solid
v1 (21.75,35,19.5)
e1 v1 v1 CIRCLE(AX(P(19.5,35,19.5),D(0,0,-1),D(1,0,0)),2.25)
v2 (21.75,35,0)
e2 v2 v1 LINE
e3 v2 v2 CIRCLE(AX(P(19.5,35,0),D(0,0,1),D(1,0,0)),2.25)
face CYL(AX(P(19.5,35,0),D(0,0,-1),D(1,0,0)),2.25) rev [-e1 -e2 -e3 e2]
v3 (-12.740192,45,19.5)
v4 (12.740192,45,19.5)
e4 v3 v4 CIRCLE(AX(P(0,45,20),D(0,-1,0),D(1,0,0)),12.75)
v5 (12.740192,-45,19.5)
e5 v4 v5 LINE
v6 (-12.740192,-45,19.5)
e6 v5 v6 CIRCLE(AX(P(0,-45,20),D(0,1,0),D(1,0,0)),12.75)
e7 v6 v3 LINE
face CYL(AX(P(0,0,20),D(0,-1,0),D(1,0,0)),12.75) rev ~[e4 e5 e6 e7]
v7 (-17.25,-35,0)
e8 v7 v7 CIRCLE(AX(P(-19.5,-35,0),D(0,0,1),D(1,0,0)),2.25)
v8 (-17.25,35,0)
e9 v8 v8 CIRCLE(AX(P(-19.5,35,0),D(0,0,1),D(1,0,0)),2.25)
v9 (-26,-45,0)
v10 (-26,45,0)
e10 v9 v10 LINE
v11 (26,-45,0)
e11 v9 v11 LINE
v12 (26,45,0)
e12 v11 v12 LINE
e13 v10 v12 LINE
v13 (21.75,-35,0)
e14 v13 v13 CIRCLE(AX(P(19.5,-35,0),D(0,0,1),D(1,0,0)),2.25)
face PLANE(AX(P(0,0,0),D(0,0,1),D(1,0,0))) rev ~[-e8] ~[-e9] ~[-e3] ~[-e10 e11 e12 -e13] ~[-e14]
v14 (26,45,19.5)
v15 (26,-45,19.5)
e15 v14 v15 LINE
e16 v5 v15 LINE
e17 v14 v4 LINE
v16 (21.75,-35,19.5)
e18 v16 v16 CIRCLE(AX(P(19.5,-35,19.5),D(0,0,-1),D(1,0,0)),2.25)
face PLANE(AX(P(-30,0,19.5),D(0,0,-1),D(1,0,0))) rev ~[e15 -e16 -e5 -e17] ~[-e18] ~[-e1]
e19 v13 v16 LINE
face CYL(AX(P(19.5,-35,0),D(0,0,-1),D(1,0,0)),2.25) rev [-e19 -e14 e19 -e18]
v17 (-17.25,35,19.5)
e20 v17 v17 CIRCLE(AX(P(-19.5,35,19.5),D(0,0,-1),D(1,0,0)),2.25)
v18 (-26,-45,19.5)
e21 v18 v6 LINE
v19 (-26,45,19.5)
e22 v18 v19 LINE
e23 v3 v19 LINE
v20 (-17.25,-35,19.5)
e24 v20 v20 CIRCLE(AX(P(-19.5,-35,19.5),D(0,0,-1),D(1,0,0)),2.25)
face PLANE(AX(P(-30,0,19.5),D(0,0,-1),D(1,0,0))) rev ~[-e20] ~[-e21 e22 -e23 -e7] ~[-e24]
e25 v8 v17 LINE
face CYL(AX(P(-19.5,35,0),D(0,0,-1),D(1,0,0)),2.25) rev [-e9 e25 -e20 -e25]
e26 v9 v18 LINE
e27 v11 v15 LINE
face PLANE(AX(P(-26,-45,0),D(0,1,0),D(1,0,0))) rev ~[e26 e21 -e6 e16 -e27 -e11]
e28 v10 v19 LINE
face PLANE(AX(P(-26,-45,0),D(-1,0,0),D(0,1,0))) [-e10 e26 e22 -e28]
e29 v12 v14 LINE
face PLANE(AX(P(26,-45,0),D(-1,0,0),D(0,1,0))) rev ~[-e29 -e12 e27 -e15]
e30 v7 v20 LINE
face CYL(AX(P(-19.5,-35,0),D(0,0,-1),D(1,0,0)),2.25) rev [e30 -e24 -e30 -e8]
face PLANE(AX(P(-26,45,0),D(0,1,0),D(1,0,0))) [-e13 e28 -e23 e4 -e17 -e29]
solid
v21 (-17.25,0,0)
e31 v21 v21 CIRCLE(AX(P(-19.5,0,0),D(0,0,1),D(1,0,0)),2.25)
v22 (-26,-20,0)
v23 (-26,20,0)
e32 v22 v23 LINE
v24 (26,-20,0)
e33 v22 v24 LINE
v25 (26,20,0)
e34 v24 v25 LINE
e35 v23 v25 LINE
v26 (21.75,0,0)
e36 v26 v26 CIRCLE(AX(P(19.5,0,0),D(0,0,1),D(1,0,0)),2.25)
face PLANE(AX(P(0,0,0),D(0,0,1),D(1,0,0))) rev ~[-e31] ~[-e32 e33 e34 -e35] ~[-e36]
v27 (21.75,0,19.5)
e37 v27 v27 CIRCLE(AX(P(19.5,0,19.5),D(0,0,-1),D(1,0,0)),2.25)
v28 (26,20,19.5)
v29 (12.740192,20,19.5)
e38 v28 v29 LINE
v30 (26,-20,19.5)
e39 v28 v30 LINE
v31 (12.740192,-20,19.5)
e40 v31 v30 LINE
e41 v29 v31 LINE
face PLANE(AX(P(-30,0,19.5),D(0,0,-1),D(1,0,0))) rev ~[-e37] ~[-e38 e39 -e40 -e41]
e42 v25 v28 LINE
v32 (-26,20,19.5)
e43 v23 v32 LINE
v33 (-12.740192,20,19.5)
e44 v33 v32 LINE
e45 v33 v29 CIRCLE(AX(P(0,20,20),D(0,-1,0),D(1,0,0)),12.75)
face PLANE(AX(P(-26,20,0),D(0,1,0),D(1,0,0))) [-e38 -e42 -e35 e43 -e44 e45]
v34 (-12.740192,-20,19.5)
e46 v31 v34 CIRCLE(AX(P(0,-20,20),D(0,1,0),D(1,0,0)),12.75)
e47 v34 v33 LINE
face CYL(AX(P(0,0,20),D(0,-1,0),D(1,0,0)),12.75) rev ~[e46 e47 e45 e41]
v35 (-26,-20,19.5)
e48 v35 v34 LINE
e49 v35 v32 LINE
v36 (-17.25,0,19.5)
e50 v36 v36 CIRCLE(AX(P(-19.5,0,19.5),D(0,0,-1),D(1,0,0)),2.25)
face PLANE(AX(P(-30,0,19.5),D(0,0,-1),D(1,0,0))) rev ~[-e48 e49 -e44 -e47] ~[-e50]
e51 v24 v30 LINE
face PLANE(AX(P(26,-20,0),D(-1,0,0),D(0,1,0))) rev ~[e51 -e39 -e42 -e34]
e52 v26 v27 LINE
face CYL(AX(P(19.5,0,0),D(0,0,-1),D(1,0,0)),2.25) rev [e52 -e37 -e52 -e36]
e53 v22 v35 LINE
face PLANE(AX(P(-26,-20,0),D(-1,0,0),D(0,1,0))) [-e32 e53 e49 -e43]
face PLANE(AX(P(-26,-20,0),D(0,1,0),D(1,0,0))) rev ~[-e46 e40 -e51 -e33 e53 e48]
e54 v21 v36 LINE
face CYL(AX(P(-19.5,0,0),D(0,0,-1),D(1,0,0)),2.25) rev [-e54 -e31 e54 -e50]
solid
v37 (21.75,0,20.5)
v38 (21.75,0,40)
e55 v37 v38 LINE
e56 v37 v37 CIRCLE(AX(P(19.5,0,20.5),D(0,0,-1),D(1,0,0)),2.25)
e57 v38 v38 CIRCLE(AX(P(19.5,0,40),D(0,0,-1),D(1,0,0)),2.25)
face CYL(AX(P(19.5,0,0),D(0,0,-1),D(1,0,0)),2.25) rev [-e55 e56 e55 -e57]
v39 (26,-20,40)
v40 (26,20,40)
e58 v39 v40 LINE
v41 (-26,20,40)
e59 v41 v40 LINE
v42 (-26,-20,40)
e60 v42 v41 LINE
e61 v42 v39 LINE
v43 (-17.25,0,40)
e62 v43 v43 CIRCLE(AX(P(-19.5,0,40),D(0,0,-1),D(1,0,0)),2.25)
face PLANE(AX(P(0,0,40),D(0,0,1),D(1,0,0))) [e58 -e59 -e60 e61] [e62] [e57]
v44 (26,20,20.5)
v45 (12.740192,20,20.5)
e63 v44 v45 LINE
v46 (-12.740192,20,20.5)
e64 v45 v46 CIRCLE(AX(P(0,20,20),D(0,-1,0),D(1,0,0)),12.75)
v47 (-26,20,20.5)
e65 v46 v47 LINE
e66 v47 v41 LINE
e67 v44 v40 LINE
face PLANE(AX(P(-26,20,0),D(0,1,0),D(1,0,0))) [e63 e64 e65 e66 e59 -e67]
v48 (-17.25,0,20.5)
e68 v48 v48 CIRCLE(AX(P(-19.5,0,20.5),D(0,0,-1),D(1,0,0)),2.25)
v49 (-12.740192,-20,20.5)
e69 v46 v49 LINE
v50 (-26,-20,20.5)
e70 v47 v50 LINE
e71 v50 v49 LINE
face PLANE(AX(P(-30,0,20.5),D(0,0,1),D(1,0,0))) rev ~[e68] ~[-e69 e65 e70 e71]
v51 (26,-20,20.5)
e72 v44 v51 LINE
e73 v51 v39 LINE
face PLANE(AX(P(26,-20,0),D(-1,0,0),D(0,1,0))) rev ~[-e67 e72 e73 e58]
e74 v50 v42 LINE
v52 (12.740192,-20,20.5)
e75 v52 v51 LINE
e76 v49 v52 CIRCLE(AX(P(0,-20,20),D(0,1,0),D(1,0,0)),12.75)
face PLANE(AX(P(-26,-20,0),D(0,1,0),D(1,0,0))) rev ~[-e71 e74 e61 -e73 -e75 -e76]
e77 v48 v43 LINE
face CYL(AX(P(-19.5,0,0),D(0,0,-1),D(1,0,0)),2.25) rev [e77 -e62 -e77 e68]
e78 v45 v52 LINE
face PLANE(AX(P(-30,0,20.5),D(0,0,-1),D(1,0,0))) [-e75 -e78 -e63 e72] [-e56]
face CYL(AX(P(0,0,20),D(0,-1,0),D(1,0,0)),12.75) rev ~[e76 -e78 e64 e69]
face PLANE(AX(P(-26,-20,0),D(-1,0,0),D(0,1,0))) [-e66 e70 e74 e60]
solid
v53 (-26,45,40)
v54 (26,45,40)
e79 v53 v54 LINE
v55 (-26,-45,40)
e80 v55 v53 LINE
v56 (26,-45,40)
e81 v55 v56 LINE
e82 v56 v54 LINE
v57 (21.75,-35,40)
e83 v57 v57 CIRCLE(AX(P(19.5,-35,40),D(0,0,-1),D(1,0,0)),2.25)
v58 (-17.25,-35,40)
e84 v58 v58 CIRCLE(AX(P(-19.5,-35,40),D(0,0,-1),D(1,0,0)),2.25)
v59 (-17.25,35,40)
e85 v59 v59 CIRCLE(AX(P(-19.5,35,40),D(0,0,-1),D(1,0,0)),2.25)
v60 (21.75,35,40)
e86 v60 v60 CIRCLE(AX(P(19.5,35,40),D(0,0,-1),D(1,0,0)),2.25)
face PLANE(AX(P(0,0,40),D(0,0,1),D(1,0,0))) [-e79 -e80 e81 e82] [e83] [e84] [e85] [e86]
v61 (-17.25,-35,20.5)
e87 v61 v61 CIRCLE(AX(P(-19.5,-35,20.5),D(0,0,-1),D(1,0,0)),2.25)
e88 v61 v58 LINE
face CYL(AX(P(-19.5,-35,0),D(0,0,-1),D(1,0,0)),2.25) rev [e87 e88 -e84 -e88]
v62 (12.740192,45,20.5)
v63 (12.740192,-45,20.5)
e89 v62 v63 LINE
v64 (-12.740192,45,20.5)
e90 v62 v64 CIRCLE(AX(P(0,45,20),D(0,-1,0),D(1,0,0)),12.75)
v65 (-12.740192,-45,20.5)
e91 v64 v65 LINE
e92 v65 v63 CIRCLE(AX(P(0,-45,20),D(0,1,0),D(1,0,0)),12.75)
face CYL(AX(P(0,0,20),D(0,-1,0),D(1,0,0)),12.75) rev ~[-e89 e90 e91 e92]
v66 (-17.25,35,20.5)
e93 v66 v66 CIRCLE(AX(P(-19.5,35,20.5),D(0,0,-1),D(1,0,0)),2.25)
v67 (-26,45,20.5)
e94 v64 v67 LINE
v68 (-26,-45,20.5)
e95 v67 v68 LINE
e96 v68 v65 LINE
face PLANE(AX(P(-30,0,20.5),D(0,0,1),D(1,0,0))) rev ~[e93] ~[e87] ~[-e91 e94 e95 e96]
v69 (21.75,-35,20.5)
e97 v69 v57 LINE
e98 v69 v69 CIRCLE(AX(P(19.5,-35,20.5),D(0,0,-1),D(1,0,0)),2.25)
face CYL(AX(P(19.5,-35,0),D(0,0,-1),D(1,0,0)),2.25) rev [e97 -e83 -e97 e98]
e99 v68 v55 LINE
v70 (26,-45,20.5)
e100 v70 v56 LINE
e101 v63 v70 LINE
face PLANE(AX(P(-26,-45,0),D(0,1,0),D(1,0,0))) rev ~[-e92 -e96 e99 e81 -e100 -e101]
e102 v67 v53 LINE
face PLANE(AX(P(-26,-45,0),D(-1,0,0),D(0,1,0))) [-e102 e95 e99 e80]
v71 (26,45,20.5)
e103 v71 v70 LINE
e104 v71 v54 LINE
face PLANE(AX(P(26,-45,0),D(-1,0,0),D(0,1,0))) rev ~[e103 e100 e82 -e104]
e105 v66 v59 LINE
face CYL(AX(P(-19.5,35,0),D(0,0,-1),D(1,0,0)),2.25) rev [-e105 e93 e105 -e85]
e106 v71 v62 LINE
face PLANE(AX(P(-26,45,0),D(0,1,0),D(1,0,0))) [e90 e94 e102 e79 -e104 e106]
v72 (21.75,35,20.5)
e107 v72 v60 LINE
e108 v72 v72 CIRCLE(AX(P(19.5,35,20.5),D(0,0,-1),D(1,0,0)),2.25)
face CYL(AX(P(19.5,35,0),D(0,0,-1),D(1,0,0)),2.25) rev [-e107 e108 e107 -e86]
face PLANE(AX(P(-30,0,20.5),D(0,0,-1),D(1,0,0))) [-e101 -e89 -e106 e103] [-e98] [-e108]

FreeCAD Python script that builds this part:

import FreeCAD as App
import Part
import Sketcher
Q = App.Units.Quantity

doc = App.newDocument("Part")
params = doc.addObject("Spreadsheet::Sheet", "Params")
for row, (alias, value) in enumerate([
    ("sketch1_width", "52 mm"),
    ("sketch1_height", "90 mm"),
    ("pad1_length", "40 mm"),
    ("sketch2_diameter", "25.5 mm"),
    ("sketch3_width", "60 mm"),
    ("sketch3_height", "1 mm"),
    ("sketch4_diameter", "4.5 mm"),
    ("sketch5_width", "52 mm"),
    ("sketch5_height", "40 mm"),
    ("pad2_length", "40 mm"),
    ("sketch6_diameter", "25.5 mm"),
    ("sketch7_width", "60 mm"),
    ("sketch7_height", "1 mm"),
    ("sketch8_diameter", "4.5 mm"),
], start=1):
    params.set(f"A{row}", alias)
    params.set(f"B{row}", "=" + value)
    params.setAlias(f"B{row}", alias)

body = doc.addObject("PartDesign::Body", "Body")
body.AllowCompound = True

# Sketch on XY plane
sketch1 = body.newObject("Sketcher::SketchObject", "Sketch")
sketch1.AttachmentSupport = (doc.getObject("XY_Plane"), [""])
sketch1.MapMode = "FlatFace"
sketch1.addGeometry(Part.LineSegment(App.Vector(-26, 45, 0), App.Vector(-26, -45, 0)), False)
sketch1.addGeometry(Part.LineSegment(App.Vector(-26, -45, 0), App.Vector(26, -45, 0)), False)
sketch1.addGeometry(Part.LineSegment(App.Vector(26, -45, 0), App.Vector(26, 45, 0)), False)
sketch1.addGeometry(Part.LineSegment(App.Vector(26, 45, 0), App.Vector(-26, 45, 0)), False)
sketch1.addConstraint(Sketcher.Constraint("Coincident", 0, 2, 1, 1))
sketch1.addConstraint(Sketcher.Constraint("Coincident", 1, 2, 2, 1))
sketch1.addConstraint(Sketcher.Constraint("Coincident", 2, 2, 3, 1))
sketch1.addConstraint(Sketcher.Constraint("Coincident", 3, 2, 0, 1))
sketch1.addConstraint(Sketcher.Constraint("Vertical", 0))
sketch1.addConstraint(Sketcher.Constraint("Horizontal", 1))
sketch1.addConstraint(Sketcher.Constraint("Vertical", 2))
sketch1.addConstraint(Sketcher.Constraint("Horizontal", 3))
sketch1.addConstraint(Sketcher.Constraint("Symmetric", 0, 2, 2, 2, -1, 1))
sketch1.addConstraint(Sketcher.Constraint("DistanceX", 1, 1, 1, 2, Q("52 mm")))
sketch1.addConstraint(Sketcher.Constraint("DistanceY", 0, 2, 0, 1, Q("90 mm")))
sketch1.setExpression("Constraints[9]", "Params.sketch1_width")
sketch1.setExpression("Constraints[10]", "Params.sketch1_height")
pad1 = body.newObject("PartDesign::Pad", "Pad")
pad1.Profile = sketch1
pad1.setExpression("Length", "Params.pad1_length")

# Sketch on XZ plane
sketch2 = body.newObject("Sketcher::SketchObject", "Sketch001")
sketch2.AttachmentSupport = (doc.getObject("XZ_Plane"), [""])
sketch2.MapMode = "FlatFace"
sketch2.addGeometry(Part.Circle(App.Vector(0, 20, 0), App.Vector(0, 0, 1), 13), False)
sketch2.addConstraint(Sketcher.Constraint("PointOnObject", 0, 3, -2))
sketch2.addConstraint(Sketcher.Constraint("Diameter", 0, Q("25.5 mm")))
sketch2.addConstraint(Sketcher.Constraint("DistanceY", -1, 1, 0, 3, Q("20 mm")))
sketch2.setExpression("Constraints[1]", "Params.sketch2_diameter")
pocket1 = body.newObject("PartDesign::Pocket", "Pocket")
pocket1.Profile = sketch2
pocket1.Type = "ThroughAll"
pocket1.Midplane = True

# Sketch on XZ plane
sketch3 = body.newObject("Sketcher::SketchObject", "Sketch002")
sketch3.AttachmentSupport = (doc.getObject("XZ_Plane"), [""])
sketch3.MapMode = "FlatFace"
sketch3.addGeometry(Part.LineSegment(App.Vector(-30, 20.5, 0), App.Vector(-30, 19.5, 0)), False)
sketch3.addGeometry(Part.LineSegment(App.Vector(-30, 19.5, 0), App.Vector(30, 19.5, 0)), False)
sketch3.addGeometry(Part.LineSegment(App.Vector(30, 19.5, 0), App.Vector(30, 20.5, 0)), False)
sketch3.addGeometry(Part.LineSegment(App.Vector(30, 20.5, 0), App.Vector(-30, 20.5, 0)), False)
sketch3.addConstraint(Sketcher.Constraint("Coincident", 0, 2, 1, 1))
sketch3.addConstraint(Sketcher.Constraint("Coincident", 1, 2, 2, 1))
sketch3.addConstraint(Sketcher.Constraint("Coincident", 2, 2, 3, 1))
sketch3.addConstraint(Sketcher.Constraint("Coincident", 3, 2, 0, 1))
sketch3.addConstraint(Sketcher.Constraint("Vertical", 0))
sketch3.addConstraint(Sketcher.Constraint("Horizontal", 1))
sketch3.addConstraint(Sketcher.Constraint("Vertical", 2))
sketch3.addConstraint(Sketcher.Constraint("Horizontal", 3))
sketch3.addConstraint(Sketcher.Constraint("DistanceX", 1, 1, 1, 2, Q("60 mm")))
sketch3.addConstraint(Sketcher.Constraint("DistanceY", 0, 2, 0, 1, Q("1 mm")))
sketch3.addConstraint(Sketcher.Constraint("DistanceX", 0, 2, -1, 1, Q("30 mm")))
sketch3.addConstraint(Sketcher.Constraint("DistanceY", -1, 1, 0, 2, Q("19.5 mm")))
sketch3.setExpression("Constraints[8]", "Params.sketch3_width")
sketch3.setExpression("Constraints[9]", "Params.sketch3_height")
pocket2 = body.newObject("PartDesign::Pocket", "Pocket001")
pocket2.Profile = sketch3
pocket2.Type = "ThroughAll"
pocket2.Midplane = True

# Sketch on XY plane
sketch4 = body.newObject("Sketcher::SketchObject", "Sketch003")
sketch4.AttachmentSupport = (doc.getObject("XY_Plane"), [""])
sketch4.MapMode = "FlatFace"
sketch4.addGeometry(Part.Circle(App.Vector(-19.5, 35, 0), App.Vector(0, 0, 1), 2.2), False)
sketch4.addGeometry(Part.Circle(App.Vector(19.5, 35, 0), App.Vector(0, 0, 1), 2.2), False)
sketch4.addGeometry(Part.Circle(App.Vector(19.5, -35, 0), App.Vector(0, 0, 1), 2.2), False)
sketch4.addGeometry(Part.Circle(App.Vector(-19.5, -35, 0), App.Vector(0, 0, 1), 2.2), False)
sketch4.addConstraint(Sketcher.Constraint("Equal", 0, 1))
sketch4.addConstraint(Sketcher.Constraint("Equal", 1, 2))
sketch4.addConstraint(Sketcher.Constraint("Equal", 2, 3))
sketch4.addConstraint(Sketcher.Constraint("Symmetric", 0, 3, 2, 3, -1, 1))
sketch4.addConstraint(Sketcher.Constraint("Symmetric", 1, 3, 3, 3, -1, 1))
sketch4.addConstraint(Sketcher.Constraint("Symmetric", 0, 3, 1, 3, -2))
sketch4.addConstraint(Sketcher.Constraint("Diameter", 0, Q("4.5 mm")))
sketch4.addConstraint(Sketcher.Constraint("DistanceY", -1, 1, 0, 3, Q("35 mm")))
sketch4.addConstraint(Sketcher.Constraint("DistanceX", 0, 3, 1, 3, Q("39 mm")))
sketch4.setExpression("Constraints[6]", "Params.sketch4_diameter")
pocket3 = body.newObject("PartDesign::Pocket", "Pocket002")
pocket3.Profile = sketch4
pocket3.Type = "ThroughAll"
pocket3.Midplane = True
body2 = doc.addObject("PartDesign::Body", "Body001")
body2.AllowCompound = True

# Sketch on XY plane
sketch5 = body2.newObject("Sketcher::SketchObject", "Sketch004")
sketch5.AttachmentSupport = (doc.getObject("XY_Plane001"), [""])
sketch5.MapMode = "FlatFace"
sketch5.addGeometry(Part.LineSegment(App.Vector(-26, 20, 0), App.Vector(-26, -20, 0)), False)
sketch5.addGeometry(Part.LineSegment(App.Vector(-26, -20, 0), App.Vector(26, -20, 0)), False)
sketch5.addGeometry(Part.LineSegment(App.Vector(26, -20, 0), App.Vector(26, 20, 0)), False)
sketch5.addGeometry(Part.LineSegment(App.Vector(26, 20, 0), App.Vector(-26, 20, 0)), False)
sketch5.addConstraint(Sketcher.Constraint("Coincident", 0, 2, 1, 1))
sketch5.addConstraint(Sketcher.Constraint("Coincident", 1, 2, 2, 1))
sketch5.addConstraint(Sketcher.Constraint("Coincident", 2, 2, 3, 1))
sketch5.addConstraint(Sketcher.Constraint("Coincident", 3, 2, 0, 1))
sketch5.addConstraint(Sketcher.Constraint("Vertical", 0))
sketch5.addConstraint(Sketcher.Constraint("Horizontal", 1))
sketch5.addConstraint(Sketcher.Constraint("Vertical", 2))
sketch5.addConstraint(Sketcher.Constraint("Horizontal", 3))
sketch5.addConstraint(Sketcher.Constraint("Symmetric", 0, 2, 2, 2, -1, 1))
sketch5.addConstraint(Sketcher.Constraint("DistanceX", 1, 1, 1, 2, Q("52 mm")))
sketch5.addConstraint(Sketcher.Constraint("DistanceY", 0, 2, 0, 1, Q("40 mm")))
sketch5.setExpression("Constraints[9]", "Params.sketch5_width")
sketch5.setExpression("Constraints[10]", "Params.sketch5_height")
pad2 = body2.newObject("PartDesign::Pad", "Pad001")
pad2.Profile = sketch5
pad2.setExpression("Length", "Params.pad2_length")

# Sketch on XZ plane
sketch6 = body2.newObject("Sketcher::SketchObject", "Sketch005")
sketch6.AttachmentSupport = (doc.getObject("XZ_Plane001"), [""])
sketch6.MapMode = "FlatFace"
sketch6.addGeometry(Part.Circle(App.Vector(0, 20, 0), App.Vector(0, 0, 1), 13), False)
sketch6.addConstraint(Sketcher.Constraint("PointOnObject", 0, 3, -2))
sketch6.addConstraint(Sketcher.Constraint("Diameter", 0, Q("25.5 mm")))
sketch6.addConstraint(Sketcher.Constraint("DistanceY", -1, 1, 0, 3, Q("20 mm")))
sketch6.setExpression("Constraints[1]", "Params.sketch6_diameter")
pocket4 = body2.newObject("PartDesign::Pocket", "Pocket003")
pocket4.Profile = sketch6
pocket4.Type = "ThroughAll"
pocket4.Midplane = True

# Sketch on XZ plane
sketch7 = body2.newObject("Sketcher::SketchObject", "Sketch006")
sketch7.AttachmentSupport = (doc.getObject("XZ_Plane001"), [""])
sketch7.MapMode = "FlatFace"
sketch7.addGeometry(Part.LineSegment(App.Vector(-30, 20.5, 0), App.Vector(-30, 19.5, 0)), False)
sketch7.addGeometry(Part.LineSegment(App.Vector(-30, 19.5, 0), App.Vector(30, 19.5, 0)), False)
sketch7.addGeometry(Part.LineSegment(App.Vector(30, 19.5, 0), App.Vector(30, 20.5, 0)), False)
sketch7.addGeometry(Part.LineSegment(App.Vector(30, 20.5, 0), App.Vector(-30, 20.5, 0)), False)
sketch7.addConstraint(Sketcher.Constraint("Coincident", 0, 2, 1, 1))
sketch7.addConstraint(Sketcher.Constraint("Coincident", 1, 2, 2, 1))
sketch7.addConstraint(Sketcher.Constraint("Coincident", 2, 2, 3, 1))
sketch7.addConstraint(Sketcher.Constraint("Coincident", 3, 2, 0, 1))
sketch7.addConstraint(Sketcher.Constraint("Vertical", 0))
sketch7.addConstraint(Sketcher.Constraint("Horizontal", 1))
sketch7.addConstraint(Sketcher.Constraint("Vertical", 2))
sketch7.addConstraint(Sketcher.Constraint("Horizontal", 3))
sketch7.addConstraint(Sketcher.Constraint("DistanceX", 1, 1, 1, 2, Q("60 mm")))
sketch7.addConstraint(Sketcher.Constraint("DistanceY", 0, 2, 0, 1, Q("1 mm")))
sketch7.addConstraint(Sketcher.Constraint("DistanceX", 0, 2, -1, 1, Q("30 mm")))
sketch7.addConstraint(Sketcher.Constraint("DistanceY", -1, 1, 0, 2, Q("19.5 mm")))
sketch7.setExpression("Constraints[8]", "Params.sketch7_width")
sketch7.setExpression("Constraints[9]", "Params.sketch7_height")
pocket5 = body2.newObject("PartDesign::Pocket", "Pocket004")
pocket5.Profile = sketch7
pocket5.Type = "ThroughAll"
pocket5.Midplane = True

# Sketch on XY plane
sketch8 = body2.newObject("Sketcher::SketchObject", "Sketch007")
sketch8.AttachmentSupport = (doc.getObject("XY_Plane001"), [""])
sketch8.MapMode = "FlatFace"
sketch8.addGeometry(Part.Circle(App.Vector(-19.5, 0, 0), App.Vector(0, 0, 1), 2.2), False)
sketch8.addGeometry(Part.Circle(App.Vector(19.5, 0, 0), App.Vector(0, 0, 1), 2.2), False)
sketch8.addConstraint(Sketcher.Constraint("Equal", 0, 1))
sketch8.addConstraint(Sketcher.Constraint("Symmetric", 0, 3, 1, 3, -1, 1))
sketch8.addConstraint(Sketcher.Constraint("PointOnObject", 0, 3, -1))
sketch8.addConstraint(Sketcher.Constraint("Diameter", 0, Q("4.5 mm")))
sketch8.addConstraint(Sketcher.Constraint("DistanceX", 0, 3, 1, 3, Q("39 mm")))
sketch8.setExpression("Constraints[3]", "Params.sketch8_diameter")
pocket6 = body2.newObject("PartDesign::Pocket", "Pocket005")
pocket6.Profile = sketch8
pocket6.Type = "ThroughAll"
pocket6.Midplane = True

doc.recompute()
